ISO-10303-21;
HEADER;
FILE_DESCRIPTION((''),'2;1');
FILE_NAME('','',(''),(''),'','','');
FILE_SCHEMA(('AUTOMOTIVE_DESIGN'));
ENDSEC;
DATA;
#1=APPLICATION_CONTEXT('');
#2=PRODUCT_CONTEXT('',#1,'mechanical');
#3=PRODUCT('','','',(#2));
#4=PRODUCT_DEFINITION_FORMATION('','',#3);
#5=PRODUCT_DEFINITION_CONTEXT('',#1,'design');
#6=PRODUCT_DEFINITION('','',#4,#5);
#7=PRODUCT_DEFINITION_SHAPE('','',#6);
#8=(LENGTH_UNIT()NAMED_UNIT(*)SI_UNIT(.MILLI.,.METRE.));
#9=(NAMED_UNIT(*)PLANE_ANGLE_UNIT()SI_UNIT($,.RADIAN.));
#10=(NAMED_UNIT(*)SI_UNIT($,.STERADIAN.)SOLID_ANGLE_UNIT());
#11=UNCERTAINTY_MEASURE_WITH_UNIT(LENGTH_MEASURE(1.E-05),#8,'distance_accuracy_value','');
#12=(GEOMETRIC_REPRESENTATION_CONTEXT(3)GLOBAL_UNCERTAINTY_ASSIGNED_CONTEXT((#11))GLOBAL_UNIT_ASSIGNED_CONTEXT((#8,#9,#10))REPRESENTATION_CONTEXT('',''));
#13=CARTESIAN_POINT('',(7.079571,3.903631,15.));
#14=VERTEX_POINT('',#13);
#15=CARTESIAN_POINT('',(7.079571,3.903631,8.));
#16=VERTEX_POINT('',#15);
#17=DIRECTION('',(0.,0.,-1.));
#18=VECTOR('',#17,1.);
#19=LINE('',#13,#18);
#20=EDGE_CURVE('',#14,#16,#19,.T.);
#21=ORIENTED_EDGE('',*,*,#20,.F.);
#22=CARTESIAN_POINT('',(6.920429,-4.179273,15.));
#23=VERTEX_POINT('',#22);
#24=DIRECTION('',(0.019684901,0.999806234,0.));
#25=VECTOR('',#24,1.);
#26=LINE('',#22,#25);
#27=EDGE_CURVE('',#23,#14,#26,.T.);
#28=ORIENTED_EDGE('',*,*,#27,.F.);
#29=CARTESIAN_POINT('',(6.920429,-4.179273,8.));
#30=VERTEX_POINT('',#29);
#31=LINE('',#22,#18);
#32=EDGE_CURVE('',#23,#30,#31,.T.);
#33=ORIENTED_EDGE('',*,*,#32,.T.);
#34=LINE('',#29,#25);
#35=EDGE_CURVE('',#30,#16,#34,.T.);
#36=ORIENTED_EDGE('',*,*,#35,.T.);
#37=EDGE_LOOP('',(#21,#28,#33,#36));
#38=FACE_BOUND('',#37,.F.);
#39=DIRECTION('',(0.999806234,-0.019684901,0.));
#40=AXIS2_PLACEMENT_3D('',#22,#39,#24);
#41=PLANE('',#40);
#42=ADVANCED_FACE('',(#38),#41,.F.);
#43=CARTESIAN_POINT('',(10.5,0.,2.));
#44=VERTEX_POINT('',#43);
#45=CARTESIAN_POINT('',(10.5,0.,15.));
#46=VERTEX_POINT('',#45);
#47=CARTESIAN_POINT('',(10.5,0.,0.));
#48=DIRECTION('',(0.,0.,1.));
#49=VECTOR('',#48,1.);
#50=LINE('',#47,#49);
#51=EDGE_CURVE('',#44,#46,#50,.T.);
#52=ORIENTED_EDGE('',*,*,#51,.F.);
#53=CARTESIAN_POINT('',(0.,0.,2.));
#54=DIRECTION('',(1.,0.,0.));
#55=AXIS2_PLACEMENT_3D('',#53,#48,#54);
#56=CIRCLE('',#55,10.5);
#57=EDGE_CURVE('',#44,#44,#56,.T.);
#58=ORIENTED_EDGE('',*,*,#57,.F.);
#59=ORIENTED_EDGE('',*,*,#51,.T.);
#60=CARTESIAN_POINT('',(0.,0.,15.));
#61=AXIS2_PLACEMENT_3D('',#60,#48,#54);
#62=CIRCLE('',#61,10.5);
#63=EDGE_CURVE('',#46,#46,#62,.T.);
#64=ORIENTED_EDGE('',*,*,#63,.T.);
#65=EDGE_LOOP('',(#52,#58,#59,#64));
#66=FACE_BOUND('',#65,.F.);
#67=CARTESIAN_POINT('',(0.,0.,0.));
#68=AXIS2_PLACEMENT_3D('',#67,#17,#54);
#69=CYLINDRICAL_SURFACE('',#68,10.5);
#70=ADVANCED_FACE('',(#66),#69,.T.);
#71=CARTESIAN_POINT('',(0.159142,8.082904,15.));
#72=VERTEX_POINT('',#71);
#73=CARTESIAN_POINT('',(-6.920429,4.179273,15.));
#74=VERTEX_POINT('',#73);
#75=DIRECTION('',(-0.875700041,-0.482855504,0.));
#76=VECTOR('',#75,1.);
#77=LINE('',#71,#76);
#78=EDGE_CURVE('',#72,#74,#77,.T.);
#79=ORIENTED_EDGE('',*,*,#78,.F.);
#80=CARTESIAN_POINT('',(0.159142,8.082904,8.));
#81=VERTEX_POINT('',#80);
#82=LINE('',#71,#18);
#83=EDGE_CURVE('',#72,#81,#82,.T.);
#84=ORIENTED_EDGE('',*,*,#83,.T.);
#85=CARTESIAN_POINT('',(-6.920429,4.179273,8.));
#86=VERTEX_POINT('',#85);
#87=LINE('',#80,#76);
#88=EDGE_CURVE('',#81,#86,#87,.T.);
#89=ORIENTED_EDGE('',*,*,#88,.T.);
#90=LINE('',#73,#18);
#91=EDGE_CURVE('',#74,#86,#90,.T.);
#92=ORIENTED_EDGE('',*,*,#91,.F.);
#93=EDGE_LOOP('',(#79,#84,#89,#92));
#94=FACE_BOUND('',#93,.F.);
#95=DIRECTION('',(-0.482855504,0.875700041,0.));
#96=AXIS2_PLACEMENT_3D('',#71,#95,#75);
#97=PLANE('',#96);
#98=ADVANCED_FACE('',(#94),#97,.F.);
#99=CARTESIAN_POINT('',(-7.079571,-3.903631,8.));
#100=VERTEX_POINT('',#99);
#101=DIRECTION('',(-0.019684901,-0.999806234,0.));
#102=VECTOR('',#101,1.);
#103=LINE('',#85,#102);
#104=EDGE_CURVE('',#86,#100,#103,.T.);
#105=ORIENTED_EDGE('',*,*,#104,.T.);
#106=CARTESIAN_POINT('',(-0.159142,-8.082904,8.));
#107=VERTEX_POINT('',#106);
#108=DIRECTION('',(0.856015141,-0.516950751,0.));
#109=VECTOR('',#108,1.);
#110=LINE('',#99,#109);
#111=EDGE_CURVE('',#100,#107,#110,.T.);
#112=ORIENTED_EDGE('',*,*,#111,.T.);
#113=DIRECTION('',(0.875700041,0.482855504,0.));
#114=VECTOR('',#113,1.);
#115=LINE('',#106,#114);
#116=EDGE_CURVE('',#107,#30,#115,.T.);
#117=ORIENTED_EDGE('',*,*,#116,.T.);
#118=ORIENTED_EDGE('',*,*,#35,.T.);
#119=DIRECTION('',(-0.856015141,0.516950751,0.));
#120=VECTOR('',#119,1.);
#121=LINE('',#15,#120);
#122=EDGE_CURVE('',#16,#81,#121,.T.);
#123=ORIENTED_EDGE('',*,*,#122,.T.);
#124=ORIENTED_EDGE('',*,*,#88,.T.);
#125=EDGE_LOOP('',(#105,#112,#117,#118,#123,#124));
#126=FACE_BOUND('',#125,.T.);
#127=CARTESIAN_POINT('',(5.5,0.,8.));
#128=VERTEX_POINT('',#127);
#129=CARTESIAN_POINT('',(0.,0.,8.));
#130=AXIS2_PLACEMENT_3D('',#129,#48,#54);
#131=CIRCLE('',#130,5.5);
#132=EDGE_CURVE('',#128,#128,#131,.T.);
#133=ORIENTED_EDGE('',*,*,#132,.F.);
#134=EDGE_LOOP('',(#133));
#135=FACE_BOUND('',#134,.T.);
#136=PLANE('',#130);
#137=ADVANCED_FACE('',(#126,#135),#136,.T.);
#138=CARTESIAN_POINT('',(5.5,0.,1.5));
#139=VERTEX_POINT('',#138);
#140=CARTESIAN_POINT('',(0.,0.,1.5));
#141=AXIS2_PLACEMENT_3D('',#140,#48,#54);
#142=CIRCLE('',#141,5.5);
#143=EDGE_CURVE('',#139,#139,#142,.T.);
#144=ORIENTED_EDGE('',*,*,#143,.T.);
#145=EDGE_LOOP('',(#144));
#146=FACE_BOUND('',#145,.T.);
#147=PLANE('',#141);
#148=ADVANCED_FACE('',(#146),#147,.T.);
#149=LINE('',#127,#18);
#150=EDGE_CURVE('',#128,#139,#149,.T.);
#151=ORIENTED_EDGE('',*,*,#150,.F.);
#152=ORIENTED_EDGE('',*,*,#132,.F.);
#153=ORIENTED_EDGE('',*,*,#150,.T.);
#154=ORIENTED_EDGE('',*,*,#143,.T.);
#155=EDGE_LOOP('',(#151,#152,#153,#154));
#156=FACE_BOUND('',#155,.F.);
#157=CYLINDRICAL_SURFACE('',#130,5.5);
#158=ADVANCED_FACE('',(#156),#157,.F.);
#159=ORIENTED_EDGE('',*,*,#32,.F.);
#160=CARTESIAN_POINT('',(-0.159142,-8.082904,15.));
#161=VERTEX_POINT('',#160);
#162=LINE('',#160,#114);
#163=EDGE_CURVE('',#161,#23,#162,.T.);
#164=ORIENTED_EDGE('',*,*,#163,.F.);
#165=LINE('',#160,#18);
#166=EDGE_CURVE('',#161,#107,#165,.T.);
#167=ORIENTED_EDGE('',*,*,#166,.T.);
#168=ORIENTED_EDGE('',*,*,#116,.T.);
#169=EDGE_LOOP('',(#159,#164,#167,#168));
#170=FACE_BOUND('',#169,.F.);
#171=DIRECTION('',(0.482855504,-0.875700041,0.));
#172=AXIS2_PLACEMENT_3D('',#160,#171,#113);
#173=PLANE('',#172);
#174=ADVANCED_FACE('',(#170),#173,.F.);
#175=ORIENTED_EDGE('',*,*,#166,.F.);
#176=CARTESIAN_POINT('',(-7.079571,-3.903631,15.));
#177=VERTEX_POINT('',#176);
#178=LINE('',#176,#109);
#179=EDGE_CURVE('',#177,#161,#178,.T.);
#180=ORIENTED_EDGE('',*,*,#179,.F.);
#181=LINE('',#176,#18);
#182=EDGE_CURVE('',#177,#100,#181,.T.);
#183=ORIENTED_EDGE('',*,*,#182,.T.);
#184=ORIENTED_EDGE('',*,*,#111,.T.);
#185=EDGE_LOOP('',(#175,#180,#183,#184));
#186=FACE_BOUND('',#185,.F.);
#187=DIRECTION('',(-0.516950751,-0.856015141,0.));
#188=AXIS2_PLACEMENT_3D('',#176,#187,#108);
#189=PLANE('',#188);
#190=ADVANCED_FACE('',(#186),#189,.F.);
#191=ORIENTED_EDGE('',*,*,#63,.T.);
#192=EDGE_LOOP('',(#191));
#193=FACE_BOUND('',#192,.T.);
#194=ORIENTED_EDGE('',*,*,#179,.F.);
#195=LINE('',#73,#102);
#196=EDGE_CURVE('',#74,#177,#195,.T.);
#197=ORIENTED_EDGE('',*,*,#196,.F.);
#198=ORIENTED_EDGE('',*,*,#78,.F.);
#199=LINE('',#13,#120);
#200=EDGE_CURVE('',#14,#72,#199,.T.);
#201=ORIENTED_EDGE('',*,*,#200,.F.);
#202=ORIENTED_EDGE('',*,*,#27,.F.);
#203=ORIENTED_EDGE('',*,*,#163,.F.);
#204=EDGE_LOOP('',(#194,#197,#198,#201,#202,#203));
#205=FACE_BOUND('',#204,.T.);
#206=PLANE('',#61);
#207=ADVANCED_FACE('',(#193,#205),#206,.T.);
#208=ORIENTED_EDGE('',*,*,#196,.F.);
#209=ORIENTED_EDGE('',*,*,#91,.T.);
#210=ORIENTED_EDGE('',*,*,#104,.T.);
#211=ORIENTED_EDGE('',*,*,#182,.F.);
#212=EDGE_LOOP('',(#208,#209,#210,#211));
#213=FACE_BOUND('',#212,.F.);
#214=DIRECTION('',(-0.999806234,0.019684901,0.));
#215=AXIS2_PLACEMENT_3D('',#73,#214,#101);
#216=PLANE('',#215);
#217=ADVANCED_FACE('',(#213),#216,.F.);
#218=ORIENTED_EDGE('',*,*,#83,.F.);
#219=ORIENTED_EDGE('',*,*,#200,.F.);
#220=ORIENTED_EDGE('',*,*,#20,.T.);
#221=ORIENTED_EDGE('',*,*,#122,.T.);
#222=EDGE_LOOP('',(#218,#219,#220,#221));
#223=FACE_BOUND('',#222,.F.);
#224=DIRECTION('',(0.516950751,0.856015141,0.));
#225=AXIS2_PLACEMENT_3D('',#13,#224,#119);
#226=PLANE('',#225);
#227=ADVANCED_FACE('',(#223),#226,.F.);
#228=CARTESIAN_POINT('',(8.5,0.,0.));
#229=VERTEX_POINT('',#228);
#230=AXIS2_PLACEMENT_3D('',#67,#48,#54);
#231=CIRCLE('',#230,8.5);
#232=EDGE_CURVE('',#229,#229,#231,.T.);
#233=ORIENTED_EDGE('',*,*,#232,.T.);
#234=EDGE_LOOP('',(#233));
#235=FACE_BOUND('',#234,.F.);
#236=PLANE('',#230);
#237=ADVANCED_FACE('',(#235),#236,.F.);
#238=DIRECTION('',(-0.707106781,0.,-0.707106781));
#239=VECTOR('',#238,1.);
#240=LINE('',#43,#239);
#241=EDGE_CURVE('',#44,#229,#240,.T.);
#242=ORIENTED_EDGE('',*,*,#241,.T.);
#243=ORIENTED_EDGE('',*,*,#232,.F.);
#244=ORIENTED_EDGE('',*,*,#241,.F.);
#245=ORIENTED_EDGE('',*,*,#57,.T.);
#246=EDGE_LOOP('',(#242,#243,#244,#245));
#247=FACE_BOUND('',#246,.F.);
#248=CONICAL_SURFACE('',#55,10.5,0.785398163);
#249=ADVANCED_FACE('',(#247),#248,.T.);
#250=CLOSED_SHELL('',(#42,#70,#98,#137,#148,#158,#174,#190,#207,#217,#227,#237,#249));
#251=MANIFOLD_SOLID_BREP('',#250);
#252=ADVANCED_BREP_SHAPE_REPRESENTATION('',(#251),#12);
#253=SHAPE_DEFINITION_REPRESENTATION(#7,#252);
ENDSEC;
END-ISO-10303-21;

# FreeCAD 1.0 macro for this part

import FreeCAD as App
import Part
import Sketcher

V = App.Vector


def edges_at(feature, points):
    """Names of the edges that pass closest to the given points."""
    edges = feature.Shape.Edges
    near = lambda p: min(range(len(edges)), key=lambda i: edges[i].distToShape(Part.Vertex(*p))[0])
    return sorted({f"Edge{near(p) + 1}" for p in points})


def add_polygon(sketch, points):
    """Adds a closed chain of lines whose ends are joined by coincident constraints."""
    first, n = sketch.GeometryCount, len(points)
    for a, b in zip(points, points[1:] + points[:1]):
        sketch.addGeometry(Part.LineSegment(App.Vector(*a, 0), App.Vector(*b, 0)), False)
    for i in range(n):
        sketch.addConstraint(Sketcher.Constraint("Coincident", first + i, 2, first + (i + 1) % n, 1))

doc = App.newDocument("Part")
body = doc.addObject("PartDesign::Body", "Body")

# Sketch on XY plane
sketch1 = body.newObject("Sketcher::SketchObject", "Sketch")
sketch1.AttachmentSupport = (doc.getObject("XY_Plane"), [""])
sketch1.MapMode = "FlatFace"
sketch1.addGeometry(Part.Circle(V(0, 0, 0), V(0, 0, 1), 10.5), False)
sketch1.addConstraint([
    Sketcher.Constraint("Coincident", 0, 3, -1, 1),
    Sketcher.Constraint("Diameter", 0, 21.0),
])
pad1 = body.newObject("PartDesign::Pad", "Pad")
pad1.Profile = sketch1
pad1.Length = 15

# Sketch on XY plane
sketch2 = body.newObject("Sketcher::SketchObject", "Sketch001")
sketch2.AttachmentSupport = (doc.getObject("XY_Plane"), [""])
sketch2.MapMode = "FlatFace"
sketch2.AttachmentOffset = App.Placement(V(0, 0, 15), App.Rotation())
add_polygon(sketch2, [(6.920429, -4.179273), (7.079571, 3.903631), (0.159142, 8.082904), (-6.920429, 4.179273), (-7.079571, -3.903631), (-0.159142, -8.082904)])  # lines 0-5
sketch2.addConstraint([
    Sketcher.Constraint("Symmetric", 0, 2, 3, 2, -1, 1),
    Sketcher.Constraint("Symmetric", 1, 2, 4, 2, -1, 1),
    Sketcher.Constraint("Symmetric", 2, 2, 5, 2, -1, 1),
    Sketcher.Constraint("Equal", 0, 1),
    Sketcher.Constraint("Equal", 1, 2),
    Sketcher.Constraint("DistanceX", 2, 2, 0, 2, 14.0),
    Sketcher.Constraint("Distance", 0, 8.08447),
    Sketcher.Constraint("DistanceX", -1, 1, 0, 2, 7.079571),
    Sketcher.Constraint("DistanceY", -1, 1, 0, 2, 3.903631),
])
pocket1 = body.newObject("PartDesign::Pocket", "Pocket")
pocket1.Profile = sketch2
pocket1.Length = 7

# Sketch on XY plane
sketch3 = body.newObject("Sketcher::SketchObject", "Sketch002")
sketch3.AttachmentSupport = (doc.getObject("XY_Plane"), [""])
sketch3.MapMode = "FlatFace"
sketch3.AttachmentOffset = App.Placement(V(0, 0, 8), App.Rotation())
sketch3.addGeometry(Part.Circle(V(0, 0, 0), V(0, 0, 1), 5.5), False)
sketch3.addConstraint([
    Sketcher.Constraint("Coincident", 0, 3, -1, 1),
    Sketcher.Constraint("Diameter", 0, 11.0),
])
pocket2 = body.newObject("PartDesign::Pocket", "Pocket001")
pocket2.Profile = sketch3
pocket2.Length = 6.5
doc.recompute()

chamfer = body.newObject("PartDesign::Chamfer", "Chamfer")
chamfer.Base = (pocket2, edges_at(pocket2, [(-10.5, 0, 0)]))
chamfer.Size = 2

doc.recompute()
